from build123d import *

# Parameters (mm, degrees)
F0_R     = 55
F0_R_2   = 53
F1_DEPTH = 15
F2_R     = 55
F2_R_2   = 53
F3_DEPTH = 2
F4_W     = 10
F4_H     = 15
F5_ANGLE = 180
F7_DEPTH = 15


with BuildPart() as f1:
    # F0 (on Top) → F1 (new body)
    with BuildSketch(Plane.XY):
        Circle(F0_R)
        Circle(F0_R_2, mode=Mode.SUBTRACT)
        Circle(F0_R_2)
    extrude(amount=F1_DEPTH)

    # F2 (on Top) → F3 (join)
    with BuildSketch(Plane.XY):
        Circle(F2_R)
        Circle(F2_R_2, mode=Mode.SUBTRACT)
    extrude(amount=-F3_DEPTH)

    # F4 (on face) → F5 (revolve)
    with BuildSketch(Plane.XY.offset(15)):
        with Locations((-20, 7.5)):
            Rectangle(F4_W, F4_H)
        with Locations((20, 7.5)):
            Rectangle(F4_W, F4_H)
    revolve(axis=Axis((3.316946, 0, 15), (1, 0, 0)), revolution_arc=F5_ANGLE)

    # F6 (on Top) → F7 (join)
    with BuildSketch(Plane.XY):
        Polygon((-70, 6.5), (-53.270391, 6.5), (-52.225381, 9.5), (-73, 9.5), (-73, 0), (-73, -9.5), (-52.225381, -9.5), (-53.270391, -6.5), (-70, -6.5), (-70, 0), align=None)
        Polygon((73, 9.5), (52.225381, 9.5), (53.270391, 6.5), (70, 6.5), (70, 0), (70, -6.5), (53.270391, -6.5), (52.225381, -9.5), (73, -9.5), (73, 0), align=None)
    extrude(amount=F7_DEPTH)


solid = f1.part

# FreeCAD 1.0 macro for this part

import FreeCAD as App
import Part
import Sketcher


def add_polygon(sketch, points):
    """Adds a closed chain of lines whose ends are joined by coincident constraints."""
    first, n = sketch.GeometryCount, len(points)
    for a, b in zip(points, points[1:] + points[:1]):
        sketch.addGeometry(Part.LineSegment(App.Vector(*a, 0), App.Vector(*b, 0)), False)
    for i in range(n):
        sketch.addConstraint(Sketcher.Constraint("Coincident", first + i, 2, first + (i + 1) % n, 1))

doc = App.newDocument("Part")
params = doc.addObject("Spreadsheet::Sheet", "Params")
for row, (alias, value) in enumerate([
    ("sketch1_diameter", "110 mm"),
    ("pad1_length", "15 mm"),
    ("sketch2_diameter", "110 mm"),
    ("sketch2_diameter2", "106 mm"),
    ("pad2_length", "2 mm"),
    ("sketch3_width", "10 mm"),
    ("sketch3_height", "15 mm"),
    ("revolution_angle", "180 deg"),
    ("sketch4_height", "19 mm"),
    ("sketch4_height2", "13 mm"),
    ("pad3_length", "15 mm"),
], start=1):
    params.set(f"A{row}", alias)
    params.set(f"B{row}", "=" + value)
    params.setAlias(f"B{row}", alias)

body = doc.addObject("PartDesign::Body", "Body")

# Sketch on XY plane
sketch1 = body.newObject("Sketcher::SketchObject", "Sketch")
sketch1.AttachmentSupport = (doc.getObject("XY_Plane"), [""])
sketch1.MapMode = "FlatFace"
sketch1.addGeometry(Part.Circle(App.Vector(0, 0, 0), App.Vector(0, 0, 1), 55), False)
sketch1.addConstraint(Sketcher.Constraint("Coincident", 0, 3, -1, 1))
sketch1.addConstraint(Sketcher.Constraint("Diameter", 0, 110.0))
sketch1.setExpression("Constraints[1]", "Params.sketch1_diameter")
pad1 = body.newObject("PartDesign::Pad", "Pad")
pad1.Profile = sketch1
pad1.setExpression("Length", "Params.pad1_length")

# Sketch on XY plane
sketch2 = body.newObject("Sketcher::SketchObject", "Sketch001")
sketch2.AttachmentSupport = (doc.getObject("XY_Plane"), [""])
sketch2.MapMode = "FlatFace"
sketch2.addGeometry(Part.Circle(App.Vector(0, 0, 0), App.Vector(0, 0, 1), 55), False)
sketch2.addGeometry(Part.Circle(App.Vector(0, 0, 0), App.Vector(0, 0, 1), 53), False)
sketch2.addConstraint(Sketcher.Constraint("Coincident", 0, 3, -1, 1))
sketch2.addConstraint(Sketcher.Constraint("Coincident", 1, 3, -1, 1))
sketch2.addConstraint(Sketcher.Constraint("Diameter", 0, 110.0))
sketch2.addConstraint(Sketcher.Constraint("Diameter", 1, 106.0))
sketch2.setExpression("Constraints[2]", "Params.sketch2_diameter")
sketch2.setExpression("Constraints[3]", "Params.sketch2_diameter2")
pad2 = body.newObject("PartDesign::Pad", "Pad001")
pad2.Profile = sketch2
pad2.setExpression("Length", "Params.pad2_length")
pad2.Reversed = True

# Sketch on XY plane
sketch3 = body.newObject("Sketcher::SketchObject", "Sketch002")
sketch3.AttachmentSupport = (doc.getObject("XY_Plane"), [""])
sketch3.MapMode = "FlatFace"
sketch3.AttachmentOffset = App.Placement(App.Vector(0, 0, 15), App.Rotation())
add_polygon(sketch3, [(-25, 15), (-25, 0), (-15, 0), (-15, 15)])  # lines 0-3
add_polygon(sketch3, [(15, 15), (15, 0), (25, 0), (25, 15)])  # lines 4-7
sketch3.addConstraint(Sketcher.Constraint("Vertical", 0))
sketch3.addConstraint(Sketcher.Constraint("Horizontal", 1))
sketch3.addConstraint(Sketcher.Constraint("Vertical", 2))
sketch3.addConstraint(Sketcher.Constraint("Horizontal", 3))
sketch3.addConstraint(Sketcher.Constraint("Vertical", 4))
sketch3.addConstraint(Sketcher.Constraint("Horizontal", 5))
sketch3.addConstraint(Sketcher.Constraint("Vertical", 6))
sketch3.addConstraint(Sketcher.Constraint("Horizontal", 7))
sketch3.addConstraint(Sketcher.Constraint("Symmetric", 1, 2, 4, 2, -1, 1))
sketch3.addConstraint(Sketcher.Constraint("Symmetric", 0, 2, 5, 2, -2))
sketch3.addConstraint(Sketcher.Constraint("Horizontal", 3, 2, 6, 2))
sketch3.addConstraint(Sketcher.Constraint("DistanceX", 1, 1, 1, 2, 10.0))
sketch3.addConstraint(Sketcher.Constraint("DistanceY", 0, 2, 0, 1, 15.0))
sketch3.addConstraint(Sketcher.Constraint("DistanceX", 0, 2, -1, 1, 25.0))
sketch3.setExpression("Constraints[19]", "Params.sketch3_width")
sketch3.setExpression("Constraints[20]", "Params.sketch3_height")
revolution = body.newObject("PartDesign::Revolution", "Revolution")
revolution.Profile = sketch3
revolution.ReferenceAxis = (sketch3, ["H_Axis"])
revolution.setExpression("Angle", "Params.revolution_angle")

# Sketch on XY plane
sketch4 = body.newObject("Sketcher::SketchObject", "Sketch003")
sketch4.AttachmentSupport = (doc.getObject("XY_Plane"), [""])
sketch4.MapMode = "FlatFace"
add_polygon(sketch4, [(-70, 6.5), (-53.270391, 6.5), (-52.225381, 9.5), (-73, 9.5), (-73, -9.5), (-52.225381, -9.5), (-53.270391, -6.5), (-70, -6.5)])  # lines 0-7
add_polygon(sketch4, [(73, 9.5), (52.225381, 9.5), (53.270391, 6.5), (70, 6.5), (70, -6.5), (53.270391, -6.5), (52.225381, -9.5), (73, -9.5)])  # lines 8-15
sketch4.addConstraint(Sketcher.Constraint("Horizontal", 0))
sketch4.addConstraint(Sketcher.Constraint("Horizontal", 2))
sketch4.addConstraint(Sketcher.Constraint("Vertical", 3))
sketch4.addConstraint(Sketcher.Constraint("Horizontal", 4))
sketch4.addConstraint(Sketcher.Constraint("Horizontal", 6))
sketch4.addConstraint(Sketcher.Constraint("Vertical", 7))
sketch4.addConstraint(Sketcher.Constraint("Horizontal", 8))
sketch4.addConstraint(Sketcher.Constraint("Horizontal", 10))
sketch4.addConstraint(Sketcher.Constraint("Vertical", 11))
sketch4.addConstraint(Sketcher.Constraint("Horizontal", 12))
sketch4.addConstraint(Sketcher.Constraint("Horizontal", 14))
sketch4.addConstraint(Sketcher.Constraint("Vertical", 15))
sketch4.addConstraint(Sketcher.Constraint("Symmetric", 4, 2, 8, 2, -1, 1))
sketch4.addConstraint(Sketcher.Constraint("Symmetric", 5, 2, 9, 2, -1, 1))
sketch4.addConstraint(Sketcher.Constraint("Symmetric", 7, 2, 11, 2, -1, 1))
sketch4.addConstraint(Sketcher.Constraint("Symmetric", 1, 2, 13, 2, -1, 1))
sketch4.addConstraint(Sketcher.Constraint("Symmetric", 1, 2, 8, 2, -2))
sketch4.addConstraint(Sketcher.Constraint("Symmetric", 0, 2, 9, 2, -2))
sketch4.addConstraint(Sketcher.Constraint("Parallel", 1, 13))
sketch4.addConstraint(Sketcher.Constraint("Equal", 4, 8))
sketch4.addConstraint(Sketcher.Constraint("DistanceY", 3, 2, 3, 1, 19.0))
sketch4.addConstraint(Sketcher.Constraint("DistanceY", 7, 1, 7, 2, 13.0))
sketch4.addConstraint(Sketcher.Constraint("DistanceX", 2, 2, -1, 1, 73.0))
sketch4.addConstraint(Sketcher.Constraint("DistanceX", 6, 2, -1, 1, 70.0))
sketch4.addConstraint(Sketcher.Constraint("Distance", 1, 3.176798))
sketch4.addConstraint(Sketcher.Constraint("DistanceX", 0, 1, 0, 2, 16.729609))
sketch4.setExpression("Constraints[36]", "Params.sketch4_height")
sketch4.setExpression("Constraints[37]", "Params.sketch4_height2")
pad3 = body.newObject("PartDesign::Pad", "Pad002")
pad3.Profile = sketch4
pad3.setExpression("Length", "Params.pad3_length")

doc.recompute()
